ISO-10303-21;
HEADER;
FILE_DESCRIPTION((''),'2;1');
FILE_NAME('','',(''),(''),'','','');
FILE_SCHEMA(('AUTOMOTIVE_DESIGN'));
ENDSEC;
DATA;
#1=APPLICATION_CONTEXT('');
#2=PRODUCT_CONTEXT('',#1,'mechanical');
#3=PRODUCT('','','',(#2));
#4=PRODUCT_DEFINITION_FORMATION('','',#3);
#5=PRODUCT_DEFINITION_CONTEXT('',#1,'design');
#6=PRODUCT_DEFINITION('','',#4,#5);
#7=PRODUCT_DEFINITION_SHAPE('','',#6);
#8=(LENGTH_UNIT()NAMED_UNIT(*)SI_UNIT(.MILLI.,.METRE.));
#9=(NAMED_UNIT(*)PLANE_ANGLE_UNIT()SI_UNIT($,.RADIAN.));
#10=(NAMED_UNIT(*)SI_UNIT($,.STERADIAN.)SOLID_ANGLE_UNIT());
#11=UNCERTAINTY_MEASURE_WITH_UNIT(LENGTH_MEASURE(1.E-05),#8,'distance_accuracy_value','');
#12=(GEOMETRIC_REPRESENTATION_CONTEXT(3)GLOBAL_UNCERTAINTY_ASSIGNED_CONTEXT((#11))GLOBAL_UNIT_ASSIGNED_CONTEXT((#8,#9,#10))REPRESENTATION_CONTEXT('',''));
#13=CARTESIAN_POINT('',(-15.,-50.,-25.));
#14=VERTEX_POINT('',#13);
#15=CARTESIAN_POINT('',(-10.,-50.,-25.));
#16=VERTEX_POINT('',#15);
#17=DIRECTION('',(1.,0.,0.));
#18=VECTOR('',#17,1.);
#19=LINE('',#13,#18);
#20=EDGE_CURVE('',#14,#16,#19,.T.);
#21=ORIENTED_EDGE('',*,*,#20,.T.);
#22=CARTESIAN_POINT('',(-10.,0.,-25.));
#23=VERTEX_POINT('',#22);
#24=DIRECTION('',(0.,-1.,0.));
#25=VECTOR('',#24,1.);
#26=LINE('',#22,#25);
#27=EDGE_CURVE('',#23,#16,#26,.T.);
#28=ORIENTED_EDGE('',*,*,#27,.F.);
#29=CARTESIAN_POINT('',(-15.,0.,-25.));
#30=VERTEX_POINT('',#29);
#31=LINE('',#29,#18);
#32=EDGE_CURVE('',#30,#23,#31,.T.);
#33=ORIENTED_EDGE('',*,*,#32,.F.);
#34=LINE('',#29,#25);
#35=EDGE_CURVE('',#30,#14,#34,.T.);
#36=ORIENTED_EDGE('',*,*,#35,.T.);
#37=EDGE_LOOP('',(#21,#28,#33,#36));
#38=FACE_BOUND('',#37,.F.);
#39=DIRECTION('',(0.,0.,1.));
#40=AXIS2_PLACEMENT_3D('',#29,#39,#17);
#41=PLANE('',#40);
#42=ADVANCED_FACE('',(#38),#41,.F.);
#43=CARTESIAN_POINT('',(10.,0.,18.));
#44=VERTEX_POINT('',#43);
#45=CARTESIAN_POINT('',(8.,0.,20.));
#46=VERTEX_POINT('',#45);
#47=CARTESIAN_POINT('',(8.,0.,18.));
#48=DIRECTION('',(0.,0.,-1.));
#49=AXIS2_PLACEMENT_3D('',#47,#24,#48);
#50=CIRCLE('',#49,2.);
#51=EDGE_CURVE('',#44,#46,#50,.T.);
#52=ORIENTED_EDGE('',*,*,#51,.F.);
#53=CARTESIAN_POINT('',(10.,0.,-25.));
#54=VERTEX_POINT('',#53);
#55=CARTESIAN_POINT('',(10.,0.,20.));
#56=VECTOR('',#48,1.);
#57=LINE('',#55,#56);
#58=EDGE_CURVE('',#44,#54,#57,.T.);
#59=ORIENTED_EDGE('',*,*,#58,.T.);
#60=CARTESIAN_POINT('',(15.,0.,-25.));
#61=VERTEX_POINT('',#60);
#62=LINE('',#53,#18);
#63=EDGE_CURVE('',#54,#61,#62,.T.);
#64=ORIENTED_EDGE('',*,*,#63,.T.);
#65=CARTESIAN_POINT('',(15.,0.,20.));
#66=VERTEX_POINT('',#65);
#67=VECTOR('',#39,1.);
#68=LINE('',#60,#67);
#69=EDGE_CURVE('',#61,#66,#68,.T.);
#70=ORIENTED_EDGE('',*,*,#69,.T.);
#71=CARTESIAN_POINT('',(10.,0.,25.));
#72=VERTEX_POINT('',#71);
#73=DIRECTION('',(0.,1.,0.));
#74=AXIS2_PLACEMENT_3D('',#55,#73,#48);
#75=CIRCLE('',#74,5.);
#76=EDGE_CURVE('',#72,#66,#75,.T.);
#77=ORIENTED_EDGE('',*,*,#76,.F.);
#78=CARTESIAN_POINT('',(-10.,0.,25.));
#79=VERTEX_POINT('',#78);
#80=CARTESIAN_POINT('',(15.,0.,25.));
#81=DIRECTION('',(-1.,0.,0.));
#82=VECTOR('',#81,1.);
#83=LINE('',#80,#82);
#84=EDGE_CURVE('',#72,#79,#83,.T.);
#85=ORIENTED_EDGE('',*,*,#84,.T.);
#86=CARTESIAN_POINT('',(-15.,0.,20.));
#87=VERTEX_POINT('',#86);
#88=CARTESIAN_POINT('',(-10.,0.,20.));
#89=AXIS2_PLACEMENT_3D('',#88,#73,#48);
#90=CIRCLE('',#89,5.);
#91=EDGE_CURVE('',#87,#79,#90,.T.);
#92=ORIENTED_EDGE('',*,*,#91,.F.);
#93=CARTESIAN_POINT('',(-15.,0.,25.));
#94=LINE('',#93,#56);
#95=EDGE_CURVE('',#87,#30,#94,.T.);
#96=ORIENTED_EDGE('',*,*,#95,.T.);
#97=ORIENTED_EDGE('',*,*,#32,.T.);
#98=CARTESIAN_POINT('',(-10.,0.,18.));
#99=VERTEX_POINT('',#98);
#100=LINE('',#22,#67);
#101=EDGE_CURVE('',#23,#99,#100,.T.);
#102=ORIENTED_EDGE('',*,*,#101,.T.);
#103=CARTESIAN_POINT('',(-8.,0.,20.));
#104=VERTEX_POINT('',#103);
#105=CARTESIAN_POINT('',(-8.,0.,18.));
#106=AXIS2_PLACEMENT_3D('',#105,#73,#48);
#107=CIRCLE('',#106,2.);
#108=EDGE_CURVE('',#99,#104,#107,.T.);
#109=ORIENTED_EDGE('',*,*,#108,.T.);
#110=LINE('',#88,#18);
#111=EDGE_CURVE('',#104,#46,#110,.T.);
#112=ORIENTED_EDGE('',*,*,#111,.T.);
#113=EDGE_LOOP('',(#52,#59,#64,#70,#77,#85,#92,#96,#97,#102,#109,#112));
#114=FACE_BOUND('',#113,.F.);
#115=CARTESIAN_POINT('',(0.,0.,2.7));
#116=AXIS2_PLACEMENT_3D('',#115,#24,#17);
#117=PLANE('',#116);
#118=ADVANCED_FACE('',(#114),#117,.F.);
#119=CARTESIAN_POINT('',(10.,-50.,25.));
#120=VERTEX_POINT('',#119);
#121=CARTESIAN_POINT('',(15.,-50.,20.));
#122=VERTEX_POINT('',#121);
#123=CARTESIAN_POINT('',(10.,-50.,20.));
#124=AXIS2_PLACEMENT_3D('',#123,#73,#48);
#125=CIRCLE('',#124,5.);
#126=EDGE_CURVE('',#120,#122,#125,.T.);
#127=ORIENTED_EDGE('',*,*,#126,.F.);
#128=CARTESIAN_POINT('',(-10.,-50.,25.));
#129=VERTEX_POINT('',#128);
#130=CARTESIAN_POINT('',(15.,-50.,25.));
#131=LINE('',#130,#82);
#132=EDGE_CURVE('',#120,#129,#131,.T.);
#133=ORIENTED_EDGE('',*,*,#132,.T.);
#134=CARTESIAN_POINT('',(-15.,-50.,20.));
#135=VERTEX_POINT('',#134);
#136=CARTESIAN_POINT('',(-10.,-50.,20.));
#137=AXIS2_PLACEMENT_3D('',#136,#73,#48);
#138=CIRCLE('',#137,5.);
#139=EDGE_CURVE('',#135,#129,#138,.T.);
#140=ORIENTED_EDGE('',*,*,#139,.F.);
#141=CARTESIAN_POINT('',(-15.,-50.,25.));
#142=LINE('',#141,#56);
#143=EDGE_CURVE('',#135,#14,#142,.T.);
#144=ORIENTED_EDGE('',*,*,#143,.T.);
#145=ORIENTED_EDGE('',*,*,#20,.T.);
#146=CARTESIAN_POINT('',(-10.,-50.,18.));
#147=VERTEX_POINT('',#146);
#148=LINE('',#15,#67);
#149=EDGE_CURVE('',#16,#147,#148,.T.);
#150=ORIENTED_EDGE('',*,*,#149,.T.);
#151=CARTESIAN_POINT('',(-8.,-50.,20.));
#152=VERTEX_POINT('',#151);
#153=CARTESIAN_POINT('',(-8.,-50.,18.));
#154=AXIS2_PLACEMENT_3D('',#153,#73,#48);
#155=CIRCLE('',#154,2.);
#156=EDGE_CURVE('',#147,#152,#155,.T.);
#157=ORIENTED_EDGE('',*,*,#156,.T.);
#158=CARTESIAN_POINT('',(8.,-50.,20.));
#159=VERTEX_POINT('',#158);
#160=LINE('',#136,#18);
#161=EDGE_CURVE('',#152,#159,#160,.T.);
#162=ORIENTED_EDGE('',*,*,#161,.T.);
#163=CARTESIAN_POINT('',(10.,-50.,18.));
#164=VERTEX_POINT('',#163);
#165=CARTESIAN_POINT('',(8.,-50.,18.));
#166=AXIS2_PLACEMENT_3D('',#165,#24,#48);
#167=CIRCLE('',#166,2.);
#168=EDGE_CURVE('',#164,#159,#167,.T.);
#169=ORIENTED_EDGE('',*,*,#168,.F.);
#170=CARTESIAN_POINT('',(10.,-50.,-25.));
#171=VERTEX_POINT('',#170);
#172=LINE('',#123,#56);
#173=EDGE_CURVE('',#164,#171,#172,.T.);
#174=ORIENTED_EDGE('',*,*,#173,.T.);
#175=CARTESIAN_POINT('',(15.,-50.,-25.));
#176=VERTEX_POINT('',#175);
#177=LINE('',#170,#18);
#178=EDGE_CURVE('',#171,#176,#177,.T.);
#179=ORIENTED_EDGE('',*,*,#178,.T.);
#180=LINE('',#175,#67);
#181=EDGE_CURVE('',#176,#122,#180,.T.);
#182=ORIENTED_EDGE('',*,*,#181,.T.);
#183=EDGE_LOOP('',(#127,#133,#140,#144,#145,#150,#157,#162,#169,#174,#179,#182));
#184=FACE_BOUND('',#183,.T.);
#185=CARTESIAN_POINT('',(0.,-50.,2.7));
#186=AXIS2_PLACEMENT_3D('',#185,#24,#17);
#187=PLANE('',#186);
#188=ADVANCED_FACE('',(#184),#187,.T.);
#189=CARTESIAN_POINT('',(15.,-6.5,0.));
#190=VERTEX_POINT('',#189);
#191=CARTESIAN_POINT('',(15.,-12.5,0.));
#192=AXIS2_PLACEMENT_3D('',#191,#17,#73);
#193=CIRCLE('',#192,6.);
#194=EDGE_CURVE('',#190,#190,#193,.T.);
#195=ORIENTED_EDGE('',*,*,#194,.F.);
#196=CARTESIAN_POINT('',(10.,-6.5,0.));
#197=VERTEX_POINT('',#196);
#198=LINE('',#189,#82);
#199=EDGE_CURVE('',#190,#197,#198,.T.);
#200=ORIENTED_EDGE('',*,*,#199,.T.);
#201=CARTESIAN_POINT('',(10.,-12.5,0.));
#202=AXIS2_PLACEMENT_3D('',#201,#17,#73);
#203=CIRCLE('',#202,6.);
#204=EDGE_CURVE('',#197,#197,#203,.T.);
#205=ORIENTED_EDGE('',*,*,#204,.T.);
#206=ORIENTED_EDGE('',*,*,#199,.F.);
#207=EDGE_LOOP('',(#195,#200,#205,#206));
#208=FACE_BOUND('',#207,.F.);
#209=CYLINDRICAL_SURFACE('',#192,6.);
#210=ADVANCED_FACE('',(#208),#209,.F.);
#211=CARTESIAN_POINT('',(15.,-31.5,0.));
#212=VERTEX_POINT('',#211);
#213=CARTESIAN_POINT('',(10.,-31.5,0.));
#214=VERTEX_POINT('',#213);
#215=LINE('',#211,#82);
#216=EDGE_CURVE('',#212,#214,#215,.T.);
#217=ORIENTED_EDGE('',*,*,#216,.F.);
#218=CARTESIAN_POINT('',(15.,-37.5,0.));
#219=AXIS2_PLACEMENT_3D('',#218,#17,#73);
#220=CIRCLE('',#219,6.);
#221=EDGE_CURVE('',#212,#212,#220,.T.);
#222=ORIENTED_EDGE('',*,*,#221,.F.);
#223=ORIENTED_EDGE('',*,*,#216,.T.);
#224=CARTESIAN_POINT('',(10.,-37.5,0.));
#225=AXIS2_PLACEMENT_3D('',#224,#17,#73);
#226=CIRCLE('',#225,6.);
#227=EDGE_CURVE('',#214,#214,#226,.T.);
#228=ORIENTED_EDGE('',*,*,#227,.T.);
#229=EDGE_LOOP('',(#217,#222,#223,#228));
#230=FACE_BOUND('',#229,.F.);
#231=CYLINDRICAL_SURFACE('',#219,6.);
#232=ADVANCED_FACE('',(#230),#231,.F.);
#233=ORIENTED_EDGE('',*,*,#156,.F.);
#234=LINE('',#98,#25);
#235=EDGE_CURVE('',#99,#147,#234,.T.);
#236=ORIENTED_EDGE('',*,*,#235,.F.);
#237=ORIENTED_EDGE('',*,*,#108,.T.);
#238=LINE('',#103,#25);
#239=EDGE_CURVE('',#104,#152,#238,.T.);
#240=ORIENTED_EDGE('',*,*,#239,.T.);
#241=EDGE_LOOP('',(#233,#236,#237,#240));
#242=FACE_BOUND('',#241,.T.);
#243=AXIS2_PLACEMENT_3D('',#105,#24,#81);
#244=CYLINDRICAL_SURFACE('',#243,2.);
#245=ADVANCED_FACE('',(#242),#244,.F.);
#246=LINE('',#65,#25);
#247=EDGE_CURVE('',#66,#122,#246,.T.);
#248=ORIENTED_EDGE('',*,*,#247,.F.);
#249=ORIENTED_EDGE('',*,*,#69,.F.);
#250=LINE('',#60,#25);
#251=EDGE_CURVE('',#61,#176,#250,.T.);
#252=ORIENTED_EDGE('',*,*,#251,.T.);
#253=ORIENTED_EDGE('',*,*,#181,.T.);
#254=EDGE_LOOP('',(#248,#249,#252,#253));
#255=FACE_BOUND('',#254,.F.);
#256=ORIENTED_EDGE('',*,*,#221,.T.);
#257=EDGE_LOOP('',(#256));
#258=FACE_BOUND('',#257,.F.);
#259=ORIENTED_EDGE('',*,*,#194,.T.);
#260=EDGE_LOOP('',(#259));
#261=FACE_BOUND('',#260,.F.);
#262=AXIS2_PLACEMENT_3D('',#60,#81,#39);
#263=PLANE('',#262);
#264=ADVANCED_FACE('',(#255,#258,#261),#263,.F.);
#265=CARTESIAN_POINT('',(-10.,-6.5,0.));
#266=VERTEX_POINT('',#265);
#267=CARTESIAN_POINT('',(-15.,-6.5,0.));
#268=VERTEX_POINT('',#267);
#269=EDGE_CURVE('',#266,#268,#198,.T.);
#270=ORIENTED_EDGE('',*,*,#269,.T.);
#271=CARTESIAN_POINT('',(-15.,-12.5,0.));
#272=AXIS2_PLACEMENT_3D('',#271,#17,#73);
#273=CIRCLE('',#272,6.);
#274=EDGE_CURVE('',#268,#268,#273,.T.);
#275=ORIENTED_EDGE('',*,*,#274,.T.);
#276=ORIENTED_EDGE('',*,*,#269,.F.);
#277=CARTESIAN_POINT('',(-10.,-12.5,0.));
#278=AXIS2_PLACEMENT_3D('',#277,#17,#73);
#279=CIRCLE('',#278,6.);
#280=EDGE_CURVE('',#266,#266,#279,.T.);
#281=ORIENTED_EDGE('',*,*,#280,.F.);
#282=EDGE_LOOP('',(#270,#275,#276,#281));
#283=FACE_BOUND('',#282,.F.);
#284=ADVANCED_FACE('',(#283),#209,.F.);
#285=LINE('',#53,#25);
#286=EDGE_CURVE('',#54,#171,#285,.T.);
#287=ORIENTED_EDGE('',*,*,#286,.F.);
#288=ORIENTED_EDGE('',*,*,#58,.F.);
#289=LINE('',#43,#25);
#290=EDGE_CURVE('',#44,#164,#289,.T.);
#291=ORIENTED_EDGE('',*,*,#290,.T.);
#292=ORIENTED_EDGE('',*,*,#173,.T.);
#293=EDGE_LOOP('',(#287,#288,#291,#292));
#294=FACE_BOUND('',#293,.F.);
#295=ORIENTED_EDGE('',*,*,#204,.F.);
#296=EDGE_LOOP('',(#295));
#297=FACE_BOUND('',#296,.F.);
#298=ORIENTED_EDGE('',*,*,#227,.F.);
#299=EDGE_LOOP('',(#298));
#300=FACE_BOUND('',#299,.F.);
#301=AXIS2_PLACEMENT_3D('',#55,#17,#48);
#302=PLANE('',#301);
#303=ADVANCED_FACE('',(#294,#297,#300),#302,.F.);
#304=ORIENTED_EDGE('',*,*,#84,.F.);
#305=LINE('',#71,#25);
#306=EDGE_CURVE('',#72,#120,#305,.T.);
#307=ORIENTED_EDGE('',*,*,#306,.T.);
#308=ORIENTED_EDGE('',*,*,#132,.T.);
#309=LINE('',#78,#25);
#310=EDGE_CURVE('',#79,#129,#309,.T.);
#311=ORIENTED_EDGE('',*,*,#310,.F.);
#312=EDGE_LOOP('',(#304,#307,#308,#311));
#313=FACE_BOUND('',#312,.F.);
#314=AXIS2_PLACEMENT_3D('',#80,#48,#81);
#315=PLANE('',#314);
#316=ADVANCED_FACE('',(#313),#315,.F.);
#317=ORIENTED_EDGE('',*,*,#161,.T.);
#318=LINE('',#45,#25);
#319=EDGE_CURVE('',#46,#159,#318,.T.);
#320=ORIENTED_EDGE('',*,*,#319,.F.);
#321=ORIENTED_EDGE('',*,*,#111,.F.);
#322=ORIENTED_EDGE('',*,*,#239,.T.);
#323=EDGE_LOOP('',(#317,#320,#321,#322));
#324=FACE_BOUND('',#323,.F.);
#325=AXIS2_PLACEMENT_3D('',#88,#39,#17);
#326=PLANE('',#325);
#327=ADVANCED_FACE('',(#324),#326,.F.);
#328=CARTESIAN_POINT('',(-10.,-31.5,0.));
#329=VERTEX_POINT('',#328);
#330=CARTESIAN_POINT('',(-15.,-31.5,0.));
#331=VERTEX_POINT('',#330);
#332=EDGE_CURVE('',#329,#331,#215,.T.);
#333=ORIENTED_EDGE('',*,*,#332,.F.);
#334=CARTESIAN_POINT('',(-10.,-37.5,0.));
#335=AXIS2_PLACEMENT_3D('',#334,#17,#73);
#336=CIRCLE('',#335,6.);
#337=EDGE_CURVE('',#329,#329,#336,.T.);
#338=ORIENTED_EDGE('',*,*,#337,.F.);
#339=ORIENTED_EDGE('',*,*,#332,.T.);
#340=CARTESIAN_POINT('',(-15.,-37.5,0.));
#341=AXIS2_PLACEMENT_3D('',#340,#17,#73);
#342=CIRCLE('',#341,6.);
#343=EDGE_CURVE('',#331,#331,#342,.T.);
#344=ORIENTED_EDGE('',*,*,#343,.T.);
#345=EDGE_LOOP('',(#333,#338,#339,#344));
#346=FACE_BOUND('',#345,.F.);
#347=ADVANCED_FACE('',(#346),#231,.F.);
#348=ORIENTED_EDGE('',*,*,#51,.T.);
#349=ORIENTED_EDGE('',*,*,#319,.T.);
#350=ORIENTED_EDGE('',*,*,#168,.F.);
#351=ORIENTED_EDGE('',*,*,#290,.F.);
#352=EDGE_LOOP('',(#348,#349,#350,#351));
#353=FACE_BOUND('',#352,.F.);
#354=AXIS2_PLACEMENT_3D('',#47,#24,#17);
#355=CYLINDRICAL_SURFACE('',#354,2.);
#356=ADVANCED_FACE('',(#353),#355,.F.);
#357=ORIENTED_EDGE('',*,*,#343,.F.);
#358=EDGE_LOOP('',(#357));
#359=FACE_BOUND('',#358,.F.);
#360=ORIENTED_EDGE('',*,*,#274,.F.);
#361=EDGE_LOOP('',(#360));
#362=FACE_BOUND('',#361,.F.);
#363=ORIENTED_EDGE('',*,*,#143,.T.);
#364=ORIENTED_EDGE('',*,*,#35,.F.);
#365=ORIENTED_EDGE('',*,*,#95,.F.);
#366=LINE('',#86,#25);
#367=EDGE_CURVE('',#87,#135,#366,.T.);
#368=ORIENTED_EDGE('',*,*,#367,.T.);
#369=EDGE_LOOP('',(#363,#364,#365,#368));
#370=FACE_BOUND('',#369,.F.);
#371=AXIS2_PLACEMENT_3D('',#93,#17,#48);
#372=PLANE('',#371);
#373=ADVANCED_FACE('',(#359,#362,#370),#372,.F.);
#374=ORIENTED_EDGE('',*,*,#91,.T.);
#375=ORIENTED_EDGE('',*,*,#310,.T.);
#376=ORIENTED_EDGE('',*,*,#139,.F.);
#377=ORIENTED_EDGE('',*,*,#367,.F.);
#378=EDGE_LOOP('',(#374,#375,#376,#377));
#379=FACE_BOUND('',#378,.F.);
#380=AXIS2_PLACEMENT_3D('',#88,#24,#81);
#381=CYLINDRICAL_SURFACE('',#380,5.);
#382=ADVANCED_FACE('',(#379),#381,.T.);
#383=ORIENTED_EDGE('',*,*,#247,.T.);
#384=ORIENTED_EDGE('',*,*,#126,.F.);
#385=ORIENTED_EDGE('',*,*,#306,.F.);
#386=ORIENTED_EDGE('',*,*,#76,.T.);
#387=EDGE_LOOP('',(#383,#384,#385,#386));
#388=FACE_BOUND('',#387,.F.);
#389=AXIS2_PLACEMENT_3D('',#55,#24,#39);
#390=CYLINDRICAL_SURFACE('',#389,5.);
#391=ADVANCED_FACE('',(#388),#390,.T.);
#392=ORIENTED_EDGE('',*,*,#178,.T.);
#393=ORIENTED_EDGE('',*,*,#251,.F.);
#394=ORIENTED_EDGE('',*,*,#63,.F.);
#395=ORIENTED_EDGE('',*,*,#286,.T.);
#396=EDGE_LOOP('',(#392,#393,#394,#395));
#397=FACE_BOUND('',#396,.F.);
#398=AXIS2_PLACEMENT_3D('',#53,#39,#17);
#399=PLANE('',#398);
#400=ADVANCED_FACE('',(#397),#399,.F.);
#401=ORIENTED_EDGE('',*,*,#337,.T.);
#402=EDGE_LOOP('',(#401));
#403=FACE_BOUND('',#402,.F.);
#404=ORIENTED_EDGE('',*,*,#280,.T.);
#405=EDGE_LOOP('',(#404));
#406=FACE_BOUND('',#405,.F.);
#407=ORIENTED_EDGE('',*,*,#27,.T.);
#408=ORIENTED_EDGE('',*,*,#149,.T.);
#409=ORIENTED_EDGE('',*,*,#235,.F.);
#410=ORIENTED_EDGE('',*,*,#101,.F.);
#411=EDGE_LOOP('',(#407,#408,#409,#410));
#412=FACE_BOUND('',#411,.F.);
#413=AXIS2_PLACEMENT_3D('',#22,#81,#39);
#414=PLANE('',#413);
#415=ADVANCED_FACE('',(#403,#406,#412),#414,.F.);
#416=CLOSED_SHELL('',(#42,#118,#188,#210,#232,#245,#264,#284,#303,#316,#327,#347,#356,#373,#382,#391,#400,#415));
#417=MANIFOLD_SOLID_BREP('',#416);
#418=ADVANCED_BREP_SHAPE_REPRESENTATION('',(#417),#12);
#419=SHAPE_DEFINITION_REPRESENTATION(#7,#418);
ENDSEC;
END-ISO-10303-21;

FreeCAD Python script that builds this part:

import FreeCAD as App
import Part
import Sketcher

V = App.Vector


def edges_at(feature, points):
    """Names of the edges that pass closest to the given points."""
    edges = feature.Shape.Edges
    near = lambda p: min(range(len(edges)), key=lambda i: edges[i].distToShape(Part.Vertex(*p))[0])
    return sorted({f"Edge{near(p) + 1}" for p in points})

doc = App.newDocument("Part")
params = doc.addObject("Spreadsheet::Sheet", "Params")
for row, (alias, value) in enumerate([
    ("sketch1_width", "30 mm"),
    ("sketch1_width2", "5 mm"),
    ("sketch1_height", "50 mm"),
    ("sketch1_height2", "45 mm"),
    ("pad1_length", "50 mm"),
    ("sketch2_diameter", "12 mm"),
    ("fillet_radius", "2 mm"),
    ("fillet2_radius", "5 mm"),
], start=1):
    params.set(f"A{row}", alias)
    params.set(f"B{row}", "=" + value)
    params.setAlias(f"B{row}", alias)

body = doc.addObject("PartDesign::Body", "Body")

# Sketch on XZ plane
sketch1 = doc.addObject("Sketcher::SketchObject", "Sketch")
body.addObject(sketch1)
sketch1.AttachmentSupport = (doc.XZ_Plane, [""])
sketch1.MapMode = "FlatFace"
sketch1.addGeometry(Part.LineSegment(V(15, -25, 0), V(15, 25, 0)), False)
sketch1.addGeometry(Part.LineSegment(V(15, 25, 0), V(-15, 25, 0)), False)
sketch1.addGeometry(Part.LineSegment(V(-15, 25, 0), V(-15, -25, 0)), False)
sketch1.addGeometry(Part.LineSegment(V(-15, -25, 0), V(-10, -25, 0)), False)
sketch1.addGeometry(Part.LineSegment(V(-10, -25, 0), V(-10, 20, 0)), False)
sketch1.addGeometry(Part.LineSegment(V(-10, 20, 0), V(10, 20, 0)), False)
sketch1.addGeometry(Part.LineSegment(V(10, 20, 0), V(10, -25, 0)), False)
sketch1.addGeometry(Part.LineSegment(V(10, -25, 0), V(15, -25, 0)), False)
sketch1.addConstraint(Sketcher.Constraint("Coincident", 0, 2, 1, 1))
sketch1.addConstraint(Sketcher.Constraint("Coincident", 1, 2, 2, 1))
sketch1.addConstraint(Sketcher.Constraint("Coincident", 2, 2, 3, 1))
sketch1.addConstraint(Sketcher.Constraint("Coincident", 3, 2, 4, 1))
sketch1.addConstraint(Sketcher.Constraint("Coincident", 4, 2, 5, 1))
sketch1.addConstraint(Sketcher.Constraint("Coincident", 5, 2, 6, 1))
sketch1.addConstraint(Sketcher.Constraint("Coincident", 6, 2, 7, 1))
sketch1.addConstraint(Sketcher.Constraint("Coincident", 7, 2, 0, 1))
sketch1.addConstraint(Sketcher.Constraint("Vertical", 0))
sketch1.addConstraint(Sketcher.Constraint("Horizontal", 1))
sketch1.addConstraint(Sketcher.Constraint("Vertical", 2))
sketch1.addConstraint(Sketcher.Constraint("Horizontal", 3))
sketch1.addConstraint(Sketcher.Constraint("Vertical", 4))
sketch1.addConstraint(Sketcher.Constraint("Horizontal", 5))
sketch1.addConstraint(Sketcher.Constraint("Vertical", 6))
sketch1.addConstraint(Sketcher.Constraint("Horizontal", 7))
sketch1.addConstraint(Sketcher.Constraint("Symmetric", 0, 2, 2, 2, -1, 1))
sketch1.addConstraint(Sketcher.Constraint("Symmetric", 3, 2, 6, 2, -2))
sketch1.addConstraint(Sketcher.Constraint("DistanceX", 1, 2, 1, 1, 30.0))
sketch1.addConstraint(Sketcher.Constraint("DistanceX", 3, 1, 3, 2, 5.0))
sketch1.addConstraint(Sketcher.Constraint("DistanceY", 0, 1, 0, 2, 50.0))
sketch1.addConstraint(Sketcher.Constraint("DistanceY", 4, 1, 4, 2, 45.0))
sketch1.setExpression("Constraints[18]", "Params.sketch1_width")
sketch1.setExpression("Constraints[19]", "Params.sketch1_width2")
sketch1.setExpression("Constraints[20]", "Params.sketch1_height")
sketch1.setExpression("Constraints[21]", "Params.sketch1_height2")
pad1 = doc.addObject("PartDesign::Pad", "Pad")
body.addObject(pad1)
pad1.Profile = sketch1
pad1.setExpression("Length", "Params.pad1_length")

# Sketch on YZ plane
sketch2 = doc.addObject("Sketcher::SketchObject", "Sketch001")
body.addObject(sketch2)
sketch2.AttachmentSupport = (doc.YZ_Plane, [""])
sketch2.MapMode = "FlatFace"
sketch2.AttachmentOffset = App.Placement(V(0, 0, 15), App.Rotation())
sketch2.addGeometry(Part.Circle(V(-38, 0, 0), V(0, 0, 1), 6), False)
sketch2.addGeometry(Part.Circle(V(-12, 0, 0), V(0, 0, 1), 6), False)
sketch2.addConstraint(Sketcher.Constraint("Equal", 0, 1))
sketch2.addConstraint(Sketcher.Constraint("PointOnObject", 0, 3, -1))
sketch2.addConstraint(Sketcher.Constraint("PointOnObject", 1, 3, -1))
sketch2.addConstraint(Sketcher.Constraint("Diameter", 0, 12.0))
sketch2.addConstraint(Sketcher.Constraint("DistanceX", 0, 3, 1, 3, 25.0))
sketch2.addConstraint(Sketcher.Constraint("DistanceX", 0, 3, -1, 1, 37.5))
sketch2.setExpression("Constraints[3]", "Params.sketch2_diameter")
pocket1 = doc.addObject("PartDesign::Pocket", "Pocket")
body.addObject(pocket1)
pocket1.Profile = sketch2
pocket1.Type = "ThroughAll"
doc.recompute()

fillet = doc.addObject("PartDesign::Fillet", "Fillet")
body.addObject(fillet)
fillet.Base = (pocket1, edges_at(pocket1, [(-10, -25, 20), (10, -25, 20)]))
fillet.setExpression("Radius", "Params.fillet_radius")
doc.recompute()

fillet2 = doc.addObject("PartDesign::Fillet", "Fillet001")
body.addObject(fillet2)
fillet2.Base = (fillet, edges_at(fillet, [(15, -25, 25), (-15, -25, 25)]))
fillet2.setExpression("Radius", "Params.fillet2_radius")

doc.recompute()
